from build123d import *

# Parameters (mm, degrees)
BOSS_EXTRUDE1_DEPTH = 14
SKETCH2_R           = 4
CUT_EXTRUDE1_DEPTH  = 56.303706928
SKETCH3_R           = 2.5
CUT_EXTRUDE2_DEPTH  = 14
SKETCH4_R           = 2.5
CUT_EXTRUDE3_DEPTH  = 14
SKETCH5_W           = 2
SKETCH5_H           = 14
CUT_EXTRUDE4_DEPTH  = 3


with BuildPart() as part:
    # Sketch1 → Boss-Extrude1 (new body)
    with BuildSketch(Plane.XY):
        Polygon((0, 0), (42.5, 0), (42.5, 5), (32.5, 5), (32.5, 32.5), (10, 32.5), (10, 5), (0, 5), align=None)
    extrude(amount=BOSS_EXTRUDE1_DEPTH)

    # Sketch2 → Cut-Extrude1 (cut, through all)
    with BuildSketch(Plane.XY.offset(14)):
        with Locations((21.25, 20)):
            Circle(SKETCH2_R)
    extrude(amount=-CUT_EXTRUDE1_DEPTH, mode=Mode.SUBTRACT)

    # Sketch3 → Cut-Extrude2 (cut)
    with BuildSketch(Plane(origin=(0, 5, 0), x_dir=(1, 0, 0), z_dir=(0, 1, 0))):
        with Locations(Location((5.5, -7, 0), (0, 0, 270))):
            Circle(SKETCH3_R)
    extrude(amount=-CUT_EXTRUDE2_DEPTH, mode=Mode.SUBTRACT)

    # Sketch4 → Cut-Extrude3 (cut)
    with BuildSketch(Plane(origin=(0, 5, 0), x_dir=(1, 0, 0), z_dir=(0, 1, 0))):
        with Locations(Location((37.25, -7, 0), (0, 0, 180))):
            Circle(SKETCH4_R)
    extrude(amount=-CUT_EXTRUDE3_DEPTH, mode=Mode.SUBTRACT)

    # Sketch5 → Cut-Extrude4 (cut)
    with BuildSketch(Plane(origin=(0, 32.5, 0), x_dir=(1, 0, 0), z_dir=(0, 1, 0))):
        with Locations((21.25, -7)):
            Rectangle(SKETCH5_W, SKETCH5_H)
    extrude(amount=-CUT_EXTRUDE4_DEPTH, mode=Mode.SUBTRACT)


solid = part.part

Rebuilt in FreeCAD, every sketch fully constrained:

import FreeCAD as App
import Part
import Sketcher
from FreeCAD import Vector

doc = App.newDocument("Part")
body = doc.addObject("PartDesign::Body", "Body")

# Sketch on XY plane
sketch1 = body.newObject("Sketcher::SketchObject", "Sketch")
sketch1.AttachmentSupport = (doc.getObject("XY_Plane"), [""])
sketch1.MapMode = "FlatFace"
sketch1.addGeometry([
    Part.LineSegment(Vector(0, 0, 0), Vector(42, 0, 0)),  # 0
    Part.LineSegment(Vector(42, 0, 0), Vector(42, 5, 0)),  # 1
    Part.LineSegment(Vector(42, 5, 0), Vector(32, 5, 0)),  # 2
    Part.LineSegment(Vector(32, 5, 0), Vector(32, 32, 0)),  # 3
    Part.LineSegment(Vector(32, 32, 0), Vector(10, 32, 0)),  # 4
    Part.LineSegment(Vector(10, 32, 0), Vector(10, 5, 0)),  # 5
    Part.LineSegment(Vector(10, 5, 0), Vector(0, 5, 0)),  # 6
    Part.LineSegment(Vector(0, 5, 0), Vector(0, 0, 0)),  # 7
], False)
sketch1.addConstraint([
    Sketcher.Constraint("Coincident", 0, 2, 1, 1),
    Sketcher.Constraint("Coincident", 1, 2, 2, 1),
    Sketcher.Constraint("Coincident", 2, 2, 3, 1),
    Sketcher.Constraint("Coincident", 3, 2, 4, 1),
    Sketcher.Constraint("Coincident", 4, 2, 5, 1),
    Sketcher.Constraint("Coincident", 5, 2, 6, 1),
    Sketcher.Constraint("Coincident", 6, 2, 7, 1),
    Sketcher.Constraint("Coincident", 7, 2, 0, 1),
    Sketcher.Constraint("Horizontal", 0),
    Sketcher.Constraint("Vertical", 1),
    Sketcher.Constraint("Horizontal", 2),
    Sketcher.Constraint("Vertical", 3),
    Sketcher.Constraint("Horizontal", 4),
    Sketcher.Constraint("Vertical", 5),
    Sketcher.Constraint("Horizontal", 6),
    Sketcher.Constraint("Vertical", 7),
    Sketcher.Constraint("Coincident", 7, 2, -1, 1),
    Sketcher.Constraint("Horizontal", 2, 2, 5, 2),
    Sketcher.Constraint("Equal", 2, 6),
    Sketcher.Constraint("DistanceX", 2, 2, 2, 1, 10.0),
    Sketcher.Constraint("DistanceY", 1, 1, 1, 2, 5.0),
    Sketcher.Constraint("DistanceX", 0, 1, 0, 2, 42.5),
    Sketcher.Constraint("DistanceY", 3, 1, 3, 2, 27.5),
])
pad1 = body.newObject("PartDesign::Pad", "Pad")
pad1.Profile = sketch1
pad1.Length = 14

# Sketch on XY plane
sketch2 = body.newObject("Sketcher::SketchObject", "Sketch001")
sketch2.AttachmentSupport = (doc.getObject("XY_Plane"), [""])
sketch2.MapMode = "FlatFace"
sketch2.AttachmentOffset = App.Placement(Vector(0, 0, 14), App.Rotation())
sketch2.addGeometry(Part.Circle(Vector(21.2, 20, 0), Vector(0, 0, 1), 4), False)
sketch2.addConstraint([
    Sketcher.Constraint("Diameter", 0, 8.0),
    Sketcher.Constraint("DistanceY", -1, 1, 0, 3, 20.0),
    Sketcher.Constraint("DistanceX", -1, 1, 0, 3, 21.25),
])
pocket1 = body.newObject("PartDesign::Pocket", "Pocket")
pocket1.Profile = sketch2
pocket1.Type = "ThroughAll"

# Sketch on XZ plane
sketch3 = body.newObject("Sketcher::SketchObject", "Sketch002")
sketch3.AttachmentSupport = (doc.getObject("XZ_Plane"), [""])
sketch3.MapMode = "FlatFace"
sketch3.AttachmentOffset = App.Placement(Vector(0, 0, -5), App.Rotation())
sketch3.addGeometry(Part.Circle(Vector(5.5, 7, 0), Vector(0, 0, 1), 2.5), False)
sketch3.addConstraint([
    Sketcher.Constraint("Diameter", 0, 5.0),
    Sketcher.Constraint("DistanceY", -1, 1, 0, 3, 7.0),
    Sketcher.Constraint("DistanceX", -1, 1, 0, 3, 5.5),
])
pocket2 = body.newObject("PartDesign::Pocket", "Pocket001")
pocket2.Profile = sketch3
pocket2.Length = 14
pocket2.Reversed = True

# Sketch on XZ plane
sketch4 = body.newObject("Sketcher::SketchObject", "Sketch003")
sketch4.AttachmentSupport = (doc.getObject("XZ_Plane"), [""])
sketch4.MapMode = "FlatFace"
sketch4.AttachmentOffset = App.Placement(Vector(0, 0, -5), App.Rotation())
sketch4.addGeometry(Part.Circle(Vector(37.2, 7, 0), Vector(0, 0, 1), 2.5), False)
sketch4.addConstraint([
    Sketcher.Constraint("Diameter", 0, 5.0),
    Sketcher.Constraint("DistanceY", -1, 1, 0, 3, 7.0),
    Sketcher.Constraint("DistanceX", -1, 1, 0, 3, 37.25),
])
pocket3 = body.newObject("PartDesign::Pocket", "Pocket002")
pocket3.Profile = sketch4
pocket3.Length = 14
pocket3.Reversed = True

# Sketch on XZ plane
sketch5 = body.newObject("Sketcher::SketchObject", "Sketch004")
sketch5.AttachmentSupport = (doc.getObject("XZ_Plane"), [""])
sketch5.MapMode = "FlatFace"
sketch5.AttachmentOffset = App.Placement(Vector(0, 0, -32.5), App.Rotation())
sketch5.addGeometry([
    Part.LineSegment(Vector(20.2, 0, 0), Vector(20.2, 14, 0)),
    Part.LineSegment(Vector(20.2, 14, 0), Vector(22.2, 14, 0)),
    Part.LineSegment(Vector(22.2, 14, 0), Vector(22.2, 0, 0)),
    Part.LineSegment(Vector(22.2, 0, 0), Vector(20.2, 0, 0)),
], False)
sketch5.addConstraint([
    Sketcher.Constraint("Coincident", 0, 2, 1, 1),
    Sketcher.Constraint("Coincident", 1, 2, 2, 1),
    Sketcher.Constraint("Coincident", 2, 2, 3, 1),
    Sketcher.Constraint("Coincident", 3, 2, 0, 1),
    Sketcher.Constraint("Vertical", 0),
    Sketcher.Constraint("Horizontal", 1),
    Sketcher.Constraint("Vertical", 2),
    Sketcher.Constraint("Horizontal", 3),
    Sketcher.Constraint("PointOnObject", 2, 2, -1),
    Sketcher.Constraint("DistanceX", 1, 1, 1, 2, 2.0),
    Sketcher.Constraint("DistanceY", 0, 1, 0, 2, 14.0),
    Sketcher.Constraint("DistanceX", -1, 1, 0, 2, 20.25),
])
pocket4 = body.newObject("PartDesign::Pocket", "Pocket003")
pocket4.Profile = sketch5
pocket4.Length = 3
pocket4.Reversed = True

doc.recompute()
